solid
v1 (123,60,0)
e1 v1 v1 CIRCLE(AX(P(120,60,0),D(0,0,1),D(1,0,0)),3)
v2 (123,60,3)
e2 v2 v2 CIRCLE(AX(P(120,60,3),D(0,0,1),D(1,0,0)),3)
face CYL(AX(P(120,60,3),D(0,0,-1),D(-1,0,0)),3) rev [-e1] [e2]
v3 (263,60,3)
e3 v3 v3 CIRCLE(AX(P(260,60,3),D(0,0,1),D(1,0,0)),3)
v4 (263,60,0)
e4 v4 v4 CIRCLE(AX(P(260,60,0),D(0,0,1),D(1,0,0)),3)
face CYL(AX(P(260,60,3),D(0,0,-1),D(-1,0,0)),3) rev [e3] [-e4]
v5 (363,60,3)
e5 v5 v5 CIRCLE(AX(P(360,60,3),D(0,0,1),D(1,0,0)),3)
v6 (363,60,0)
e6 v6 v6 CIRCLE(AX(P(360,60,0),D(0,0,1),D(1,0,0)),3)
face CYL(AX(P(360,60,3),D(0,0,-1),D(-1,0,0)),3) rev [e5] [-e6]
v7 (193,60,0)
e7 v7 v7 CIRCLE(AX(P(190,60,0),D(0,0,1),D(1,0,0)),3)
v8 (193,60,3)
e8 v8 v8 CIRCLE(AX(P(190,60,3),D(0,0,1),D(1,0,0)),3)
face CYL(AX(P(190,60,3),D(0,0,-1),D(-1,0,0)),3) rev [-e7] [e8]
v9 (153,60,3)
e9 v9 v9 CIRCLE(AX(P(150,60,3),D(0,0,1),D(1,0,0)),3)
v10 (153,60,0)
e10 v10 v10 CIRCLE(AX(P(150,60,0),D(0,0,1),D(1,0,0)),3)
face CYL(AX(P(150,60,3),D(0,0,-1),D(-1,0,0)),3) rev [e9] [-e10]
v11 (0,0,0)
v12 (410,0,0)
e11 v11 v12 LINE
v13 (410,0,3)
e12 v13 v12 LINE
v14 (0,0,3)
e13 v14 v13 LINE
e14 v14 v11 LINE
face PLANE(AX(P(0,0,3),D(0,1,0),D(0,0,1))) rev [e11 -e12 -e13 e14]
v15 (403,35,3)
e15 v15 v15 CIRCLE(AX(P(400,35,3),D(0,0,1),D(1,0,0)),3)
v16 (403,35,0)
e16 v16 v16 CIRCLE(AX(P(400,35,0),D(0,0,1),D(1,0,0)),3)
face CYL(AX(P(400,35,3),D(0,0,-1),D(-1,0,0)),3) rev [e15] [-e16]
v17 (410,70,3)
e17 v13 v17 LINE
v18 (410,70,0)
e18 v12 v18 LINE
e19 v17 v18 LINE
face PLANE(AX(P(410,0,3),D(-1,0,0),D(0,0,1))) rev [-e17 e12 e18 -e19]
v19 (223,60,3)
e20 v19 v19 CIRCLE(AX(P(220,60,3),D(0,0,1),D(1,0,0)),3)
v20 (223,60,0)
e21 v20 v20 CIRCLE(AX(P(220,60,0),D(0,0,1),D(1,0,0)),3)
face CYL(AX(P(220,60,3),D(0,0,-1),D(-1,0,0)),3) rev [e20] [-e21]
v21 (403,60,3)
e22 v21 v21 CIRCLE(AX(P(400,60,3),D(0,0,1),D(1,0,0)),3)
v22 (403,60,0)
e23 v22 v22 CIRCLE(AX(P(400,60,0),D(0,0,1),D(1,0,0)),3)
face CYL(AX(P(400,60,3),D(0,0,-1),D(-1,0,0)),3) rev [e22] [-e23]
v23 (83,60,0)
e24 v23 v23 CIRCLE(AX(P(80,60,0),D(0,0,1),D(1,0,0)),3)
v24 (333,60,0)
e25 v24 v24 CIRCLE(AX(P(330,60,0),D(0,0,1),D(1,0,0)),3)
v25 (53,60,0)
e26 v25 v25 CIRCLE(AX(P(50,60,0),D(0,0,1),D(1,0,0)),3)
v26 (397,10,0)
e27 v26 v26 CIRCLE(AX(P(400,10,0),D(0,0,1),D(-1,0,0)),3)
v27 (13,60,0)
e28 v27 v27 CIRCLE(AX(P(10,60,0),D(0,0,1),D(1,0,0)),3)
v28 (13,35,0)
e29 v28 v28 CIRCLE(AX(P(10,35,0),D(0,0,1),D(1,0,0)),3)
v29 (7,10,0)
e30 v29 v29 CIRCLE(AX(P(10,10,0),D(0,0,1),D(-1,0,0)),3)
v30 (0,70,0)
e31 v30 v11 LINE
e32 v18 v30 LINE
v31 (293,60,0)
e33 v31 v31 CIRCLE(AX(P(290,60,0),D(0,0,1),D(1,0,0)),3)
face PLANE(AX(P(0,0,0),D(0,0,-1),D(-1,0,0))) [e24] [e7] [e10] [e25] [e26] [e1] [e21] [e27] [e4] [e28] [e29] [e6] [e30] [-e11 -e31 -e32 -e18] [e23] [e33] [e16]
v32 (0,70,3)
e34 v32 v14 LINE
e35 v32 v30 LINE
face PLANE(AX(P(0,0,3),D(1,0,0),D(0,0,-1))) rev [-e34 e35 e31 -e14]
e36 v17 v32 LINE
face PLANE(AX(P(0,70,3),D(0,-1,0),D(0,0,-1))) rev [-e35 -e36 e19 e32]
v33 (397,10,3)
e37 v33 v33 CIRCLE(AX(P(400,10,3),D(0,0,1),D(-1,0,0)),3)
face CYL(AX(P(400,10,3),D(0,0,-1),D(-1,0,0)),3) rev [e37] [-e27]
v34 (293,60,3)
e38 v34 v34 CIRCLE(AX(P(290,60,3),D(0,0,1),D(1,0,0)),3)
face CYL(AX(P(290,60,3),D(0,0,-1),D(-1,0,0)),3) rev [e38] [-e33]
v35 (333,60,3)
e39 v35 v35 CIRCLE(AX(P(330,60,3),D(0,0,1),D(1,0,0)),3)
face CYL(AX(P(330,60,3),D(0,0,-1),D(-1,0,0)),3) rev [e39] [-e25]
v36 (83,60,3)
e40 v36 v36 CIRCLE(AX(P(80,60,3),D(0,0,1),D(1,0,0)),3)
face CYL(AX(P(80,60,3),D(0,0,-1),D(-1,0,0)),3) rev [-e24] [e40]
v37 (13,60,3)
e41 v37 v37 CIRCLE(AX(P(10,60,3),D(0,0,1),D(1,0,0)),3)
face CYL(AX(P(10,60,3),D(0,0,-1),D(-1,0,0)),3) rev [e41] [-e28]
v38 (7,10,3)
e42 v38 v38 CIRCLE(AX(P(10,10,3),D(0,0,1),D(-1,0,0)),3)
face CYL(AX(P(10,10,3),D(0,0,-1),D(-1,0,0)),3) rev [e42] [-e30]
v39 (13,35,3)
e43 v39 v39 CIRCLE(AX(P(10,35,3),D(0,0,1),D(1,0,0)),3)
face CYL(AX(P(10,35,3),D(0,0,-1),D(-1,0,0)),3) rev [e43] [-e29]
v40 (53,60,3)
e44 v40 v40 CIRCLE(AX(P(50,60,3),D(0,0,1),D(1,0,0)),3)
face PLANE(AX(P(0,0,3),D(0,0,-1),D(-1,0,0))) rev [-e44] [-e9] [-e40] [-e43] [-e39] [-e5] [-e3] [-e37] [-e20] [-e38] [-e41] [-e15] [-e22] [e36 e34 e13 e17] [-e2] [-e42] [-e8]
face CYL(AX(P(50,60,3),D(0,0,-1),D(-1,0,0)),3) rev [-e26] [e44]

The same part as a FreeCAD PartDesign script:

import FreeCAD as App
import Part
import Sketcher


def add_polygon(sketch, points):
    """Adds a closed chain of lines whose ends are joined by coincident constraints."""
    first, n = sketch.GeometryCount, len(points)
    for a, b in zip(points, points[1:] + points[:1]):
        sketch.addGeometry(Part.LineSegment(App.Vector(*a, 0), App.Vector(*b, 0)), False)
    for i in range(n):
        sketch.addConstraint(Sketcher.Constraint("Coincident", first + i, 2, first + (i + 1) % n, 1))

doc = App.newDocument("Part")
body = doc.addObject("PartDesign::Body", "Body")

sketch1 = body.newObject("Sketcher::SketchObject", "Sketch")
sketch1.AttachmentSupport = (doc.getObject("XY_Plane"), [""])
sketch1.MapMode = "FlatFace"
add_polygon(sketch1, [(0, 70), (0, 0), (410, 0), (410, 70)])
sketch1.addGeometry(Part.Circle(App.Vector(10, 10, 0), App.Vector(0, 0, 1), 3), False)
sketch1.addGeometry(Part.Circle(App.Vector(400, 10, 0), App.Vector(0, 0, 1), 3), False)
sketch1.addGeometry(Part.Circle(App.Vector(10, 35, 0), App.Vector(0, 0, 1), 3), False)
sketch1.addGeometry(Part.Circle(App.Vector(10, 60, 0), App.Vector(0, 0, 1), 3), False)
sketch1.addGeometry(Part.Circle(App.Vector(50, 60, 0), App.Vector(0, 0, 1), 3), False)
sketch1.addGeometry(Part.Circle(App.Vector(80, 60, 0), App.Vector(0, 0, 1), 3), False)
sketch1.addGeometry(Part.Circle(App.Vector(120, 60, 0), App.Vector(0, 0, 1), 3), False)
sketch1.addGeometry(Part.Circle(App.Vector(150, 60, 0), App.Vector(0, 0, 1), 3), False)
sketch1.addGeometry(Part.Circle(App.Vector(190, 60, 0), App.Vector(0, 0, 1), 3), False)
sketch1.addGeometry(Part.Circle(App.Vector(400, 35, 0), App.Vector(0, 0, 1), 3), False)
sketch1.addGeometry(Part.Circle(App.Vector(220, 60, 0), App.Vector(0, 0, 1), 3), False)
sketch1.addGeometry(Part.Circle(App.Vector(260, 60, 0), App.Vector(0, 0, 1), 3), False)
sketch1.addGeometry(Part.Circle(App.Vector(290, 60, 0), App.Vector(0, 0, 1), 3), False)
sketch1.addGeometry(Part.Circle(App.Vector(330, 60, 0), App.Vector(0, 0, 1), 3), False)
sketch1.addGeometry(Part.Circle(App.Vector(360, 60, 0), App.Vector(0, 0, 1), 3), False)
sketch1.addGeometry(Part.Circle(App.Vector(400, 60, 0), App.Vector(0, 0, 1), 3), False)
sketch1.addConstraint(Sketcher.Constraint("Vertical", 0))
sketch1.addConstraint(Sketcher.Constraint("Horizontal", 1))
sketch1.addConstraint(Sketcher.Constraint("Vertical", 2))
sketch1.addConstraint(Sketcher.Constraint("Horizontal", 3))
sketch1.addConstraint(Sketcher.Constraint("Coincident", 0, 2, -1, 1))
sketch1.addConstraint(Sketcher.Constraint("Equal", 4, 5))
sketch1.addConstraint(Sketcher.Constraint("Equal", 5, 6))
sketch1.addConstraint(Sketcher.Constraint("Equal", 6, 7))
sketch1.addConstraint(Sketcher.Constraint("Equal", 7, 8))
sketch1.addConstraint(Sketcher.Constraint("Equal", 8, 9))
sketch1.addConstraint(Sketcher.Constraint("Equal", 9, 10))
sketch1.addConstraint(Sketcher.Constraint("Equal", 10, 11))
sketch1.addConstraint(Sketcher.Constraint("Equal", 11, 12))
sketch1.addConstraint(Sketcher.Constraint("Equal", 12, 13))
sketch1.addConstraint(Sketcher.Constraint("Equal", 13, 14))
sketch1.addConstraint(Sketcher.Constraint("Equal", 14, 15))
sketch1.addConstraint(Sketcher.Constraint("Equal", 15, 16))
sketch1.addConstraint(Sketcher.Constraint("Equal", 16, 17))
sketch1.addConstraint(Sketcher.Constraint("Equal", 17, 18))
sketch1.addConstraint(Sketcher.Constraint("Equal", 18, 19))
sketch1.addConstraint(Sketcher.Constraint("Horizontal", 4, 3, 5, 3))
sketch1.addConstraint(Sketcher.Constraint("Horizontal", 7, 3, 8, 3))
sketch1.addConstraint(Sketcher.Constraint("Horizontal", 8, 3, 9, 3))
sketch1.addConstraint(Sketcher.Constraint("Horizontal", 9, 3, 10, 3))
sketch1.addConstraint(Sketcher.Constraint("Horizontal", 10, 3, 11, 3))
sketch1.addConstraint(Sketcher.Constraint("Horizontal", 11, 3, 12, 3))
sketch1.addConstraint(Sketcher.Constraint("Horizontal", 6, 3, 13, 3))
sketch1.addConstraint(Sketcher.Constraint("Horizontal", 12, 3, 14, 3))
sketch1.addConstraint(Sketcher.Constraint("Horizontal", 14, 3, 15, 3))
sketch1.addConstraint(Sketcher.Constraint("Horizontal", 15, 3, 16, 3))
sketch1.addConstraint(Sketcher.Constraint("Horizontal", 16, 3, 17, 3))
sketch1.addConstraint(Sketcher.Constraint("Horizontal", 17, 3, 18, 3))
sketch1.addConstraint(Sketcher.Constraint("Horizontal", 18, 3, 19, 3))
sketch1.addConstraint(Sketcher.Constraint("Vertical", 4, 3, 6, 3))
sketch1.addConstraint(Sketcher.Constraint("Vertical", 6, 3, 7, 3))
sketch1.addConstraint(Sketcher.Constraint("Vertical", 5, 3, 13, 3))
sketch1.addConstraint(Sketcher.Constraint("Vertical", 13, 3, 19, 3))
sketch1.addConstraint(Sketcher.Constraint("Diameter", 4, 6.0))
sketch1.addConstraint(Sketcher.Constraint("DistanceX", 1, 1, 1, 2, 410.0))
sketch1.addConstraint(Sketcher.Constraint("DistanceY", 0, 2, 0, 1, 70.0))
sketch1.addConstraint(Sketcher.Constraint("DistanceX", -1, 1, 4, 3, 10.0))
sketch1.addConstraint(Sketcher.Constraint("DistanceY", -1, 1, 4, 3, 10.0))
sketch1.addConstraint(Sketcher.Constraint("DistanceX", -1, 1, 5, 3, 400.0))
sketch1.addConstraint(Sketcher.Constraint("DistanceY", -1, 1, 6, 3, 35.0))
sketch1.addConstraint(Sketcher.Constraint("DistanceY", -1, 1, 7, 3, 60.0))
sketch1.addConstraint(Sketcher.Constraint("DistanceX", -1, 1, 8, 3, 50.0))
sketch1.addConstraint(Sketcher.Constraint("DistanceX", -1, 1, 9, 3, 80.0))
sketch1.addConstraint(Sketcher.Constraint("DistanceX", -1, 1, 10, 3, 120.0))
sketch1.addConstraint(Sketcher.Constraint("DistanceX", -1, 1, 11, 3, 150.0))
sketch1.addConstraint(Sketcher.Constraint("DistanceX", -1, 1, 12, 3, 190.0))
sketch1.addConstraint(Sketcher.Constraint("DistanceX", -1, 1, 14, 3, 220.0))
sketch1.addConstraint(Sketcher.Constraint("DistanceX", -1, 1, 15, 3, 260.0))
sketch1.addConstraint(Sketcher.Constraint("DistanceX", -1, 1, 16, 3, 290.0))
sketch1.addConstraint(Sketcher.Constraint("DistanceX", -1, 1, 17, 3, 330.0))
sketch1.addConstraint(Sketcher.Constraint("DistanceX", -1, 1, 18, 3, 360.0))
pad1 = body.newObject("PartDesign::Pad", "Pad")
pad1.Profile = sketch1
pad1.Length = 3

doc.recompute()
